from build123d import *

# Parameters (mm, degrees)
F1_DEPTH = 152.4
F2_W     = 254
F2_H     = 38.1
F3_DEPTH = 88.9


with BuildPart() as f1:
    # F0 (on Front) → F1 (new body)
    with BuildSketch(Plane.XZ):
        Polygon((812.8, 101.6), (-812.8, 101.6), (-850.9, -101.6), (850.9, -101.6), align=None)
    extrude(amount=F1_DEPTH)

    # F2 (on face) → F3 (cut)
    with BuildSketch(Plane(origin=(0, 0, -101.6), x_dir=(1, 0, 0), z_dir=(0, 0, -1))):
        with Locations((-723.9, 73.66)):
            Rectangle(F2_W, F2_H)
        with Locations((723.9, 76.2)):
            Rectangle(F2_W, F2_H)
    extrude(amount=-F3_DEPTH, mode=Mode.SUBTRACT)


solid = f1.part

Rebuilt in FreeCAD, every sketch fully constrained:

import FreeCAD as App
import Part
import Sketcher

V = App.Vector
Q = App.Units.Quantity

doc = App.newDocument("Part")
params = doc.addObject("Spreadsheet::Sheet", "Params")
for row, (alias, value) in enumerate([
    ("sketch1_width", "64 in"),
    ("sketch1_width2", "67 in"),
    ("pad1_length", "6 in"),
    ("sketch2_width", "10 in"),
    ("sketch2_height", "1.5 in"),
    ("pocket1_length", "3.5 in"),
], start=1):
    params.set(f"A{row}", alias)
    params.set(f"B{row}", "=" + value)
    params.setAlias(f"B{row}", alias)

body = doc.addObject("PartDesign::Body", "Body")

sketch1 = body.newObject("Sketcher::SketchObject", "Sketch")
sketch1.AttachmentSupport = (doc.getObject("XZ_Plane"), [""])
sketch1.MapMode = "FlatFace"
sketch1.addGeometry([
    Part.LineSegment(V(812.8, 101.6, 0), V(-812.8, 101.6, 0)),
    Part.LineSegment(V(-812.8, 101.6, 0), V(-850.9, -101.6, 0)),
    Part.LineSegment(V(-850.9, -101.6, 0), V(850.9, -101.6, 0)),
    Part.LineSegment(V(850.9, -101.6, 0), V(812.8, 101.6, 0)),
], False)
sketch1.addConstraint([
    Sketcher.Constraint("Coincident", 0, 2, 1, 1),
    Sketcher.Constraint("Coincident", 1, 2, 2, 1),
    Sketcher.Constraint("Coincident", 2, 2, 3, 1),
    Sketcher.Constraint("Coincident", 3, 2, 0, 1),
    Sketcher.Constraint("Horizontal", 0),
    Sketcher.Constraint("Horizontal", 2),
    Sketcher.Constraint("Equal", 1, 3),
    Sketcher.Constraint("DistanceX", 0, 2, 0, 1, Q("64 in")),
    Sketcher.Constraint("DistanceX", 2, 1, 2, 2, Q("67 in")),
    Sketcher.Constraint("DistanceX", 0, 2, -1, 1, Q("32 in")),
    Sketcher.Constraint("DistanceY", -1, 1, 0, 2, Q("4 in")),
    Sketcher.Constraint("DistanceY", 1, 2, -1, 1, Q("4 in")),
])
sketch1.setExpression("Constraints[7]", "Params.sketch1_width")
sketch1.setExpression("Constraints[8]", "Params.sketch1_width2")
pad1 = body.newObject("PartDesign::Pad", "Pad")
pad1.Profile = sketch1
pad1.setExpression("Length", "Params.pad1_length")

sketch2 = body.newObject("Sketcher::SketchObject", "Sketch001")
sketch2.AttachmentSupport = (doc.getObject("XY_Plane"), [""])
sketch2.MapMode = "FlatFace"
sketch2.AttachmentOffset = App.Placement(V(0, 0, -4 * 25.4), App.Rotation())
sketch2.addGeometry([
    Part.LineSegment(V(-850.9, -92.71, 0), V(-850.9, -54.61, 0)),
    Part.LineSegment(V(-850.9, -54.61, 0), V(-596.9, -54.61, 0)),
    Part.LineSegment(V(-596.9, -54.61, 0), V(-596.9, -92.71, 0)),
    Part.LineSegment(V(-596.9, -92.71, 0), V(-850.9, -92.71, 0)),
    Part.LineSegment(V(596.9, -95.25, 0), V(596.9, -57.15, 0)),
    Part.LineSegment(V(596.9, -57.15, 0), V(850.9, -57.15, 0)),
    Part.LineSegment(V(850.9, -57.15, 0), V(850.9, -95.25, 0)),
    Part.LineSegment(V(850.9, -95.25, 0), V(596.9, -95.25, 0)),
], False)
sketch2.addConstraint([
    Sketcher.Constraint("Coincident", 0, 2, 1, 1),
    Sketcher.Constraint("Coincident", 1, 2, 2, 1),
    Sketcher.Constraint("Coincident", 2, 2, 3, 1),
    Sketcher.Constraint("Coincident", 3, 2, 0, 1),
    Sketcher.Constraint("Coincident", 4, 2, 5, 1),
    Sketcher.Constraint("Coincident", 5, 2, 6, 1),
    Sketcher.Constraint("Coincident", 6, 2, 7, 1),
    Sketcher.Constraint("Coincident", 7, 2, 4, 1),
    Sketcher.Constraint("Vertical", 0),
    Sketcher.Constraint("Horizontal", 1),
    Sketcher.Constraint("Vertical", 2),
    Sketcher.Constraint("Horizontal", 3),
    Sketcher.Constraint("Vertical", 4),
    Sketcher.Constraint("Horizontal", 5),
    Sketcher.Constraint("Vertical", 6),
    Sketcher.Constraint("Horizontal", 7),
    Sketcher.Constraint("Equal", 3, 5),
    Sketcher.Constraint("Equal", 2, 4),
    Sketcher.Constraint("DistanceX", 1, 1, 1, 2, Q("10 in")),
    Sketcher.Constraint("DistanceY", 0, 1, 0, 2, Q("1.5 in")),
    Sketcher.Constraint("DistanceX", 1, 2, 4, 2, Q("47 in")),
    Sketcher.Constraint("DistanceX", 0, 2, -1, 1, Q("33.5 in")),
    Sketcher.Constraint("DistanceY", 4, 2, 1, 2, Q("0.1 in")),
    Sketcher.Constraint("DistanceY", 0, 2, -1, 1, Q("2.15 in")),
])
sketch2.setExpression("Constraints[18]", "Params.sketch2_width")
sketch2.setExpression("Constraints[19]", "Params.sketch2_height")
pocket1 = body.newObject("PartDesign::Pocket", "Pocket")
pocket1.Profile = sketch2
pocket1.setExpression("Length", "Params.pocket1_length")
pocket1.Reversed = True

doc.recompute()
